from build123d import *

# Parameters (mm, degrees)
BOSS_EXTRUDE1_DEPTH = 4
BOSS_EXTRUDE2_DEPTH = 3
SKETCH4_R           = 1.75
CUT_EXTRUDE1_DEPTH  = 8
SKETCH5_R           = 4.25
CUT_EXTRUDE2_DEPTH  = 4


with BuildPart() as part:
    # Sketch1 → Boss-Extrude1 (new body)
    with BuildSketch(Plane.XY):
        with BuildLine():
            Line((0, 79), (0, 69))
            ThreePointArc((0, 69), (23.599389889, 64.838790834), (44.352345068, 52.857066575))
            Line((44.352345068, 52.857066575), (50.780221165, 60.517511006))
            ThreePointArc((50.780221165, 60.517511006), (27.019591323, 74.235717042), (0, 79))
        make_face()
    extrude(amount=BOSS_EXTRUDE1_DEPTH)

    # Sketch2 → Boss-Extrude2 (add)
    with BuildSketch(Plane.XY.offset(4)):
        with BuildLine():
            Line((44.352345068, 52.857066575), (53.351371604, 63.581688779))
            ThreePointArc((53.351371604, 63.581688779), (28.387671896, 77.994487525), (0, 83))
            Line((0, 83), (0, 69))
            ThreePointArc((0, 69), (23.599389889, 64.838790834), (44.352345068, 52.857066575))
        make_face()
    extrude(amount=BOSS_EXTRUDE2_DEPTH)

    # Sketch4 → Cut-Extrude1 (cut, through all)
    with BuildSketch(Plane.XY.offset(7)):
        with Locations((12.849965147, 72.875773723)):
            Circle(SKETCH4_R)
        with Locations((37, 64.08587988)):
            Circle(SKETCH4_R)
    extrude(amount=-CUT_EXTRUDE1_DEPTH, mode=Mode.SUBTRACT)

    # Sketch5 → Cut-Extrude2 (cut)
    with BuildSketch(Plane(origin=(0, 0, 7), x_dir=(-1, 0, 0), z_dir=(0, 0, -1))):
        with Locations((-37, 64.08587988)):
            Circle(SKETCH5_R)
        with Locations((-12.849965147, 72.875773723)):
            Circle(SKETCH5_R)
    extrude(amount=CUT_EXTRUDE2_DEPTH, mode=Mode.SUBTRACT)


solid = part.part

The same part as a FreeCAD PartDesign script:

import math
import FreeCAD as App
import Part
import Sketcher

V = App.Vector
Q = App.Units.Quantity

doc = App.newDocument("Part")
params = doc.addObject("Spreadsheet::Sheet", "Params")
for row, (alias, value) in enumerate([
    ("sketch1_radius", "69 mm"),
    ("sketch1_radius2", "79 mm"),
    ("pad1_length", "4 mm"),
    ("sketch2_radius", "83 mm"),
    ("sketch2_radius2", "69 mm"),
    ("pad2_length", "3 mm"),
    ("sketch3_diameter", "3.5 mm"),
    ("sketch4_diameter", "8.5 mm"),
    ("pocket2_length", "4 mm"),
], start=1):
    params.set(f"A{row}", alias)
    params.set(f"B{row}", "=" + value)
    params.setAlias(f"B{row}", alias)

body = doc.addObject("PartDesign::Body", "Body")

# Sketch on XY plane
sketch1 = body.newObject("Sketcher::SketchObject", "Sketch")
sketch1.AttachmentSupport = (doc.getObject("XY_Plane"), [""])
sketch1.MapMode = "FlatFace"
sketch1.addGeometry(Part.LineSegment(V(0, 79, 0), V(0, 69, 0)), False)
sketch1.addGeometry(Part.ArcOfCircle(Part.Circle(V(0, 0, 0), V(0, 0, 1), 69), math.radians(50), math.radians(90)), False)
sketch1.addGeometry(Part.LineSegment(V(44, 53, 0), V(51, 61, 0)), False)
sketch1.addGeometry(Part.ArcOfCircle(Part.Circle(V(0, 0, 0), V(0, 0, 1), 79), math.radians(50), math.radians(90)), False)
sketch1.addConstraint(Sketcher.Constraint("Coincident", 0, 2, 1, 2))
sketch1.addConstraint(Sketcher.Constraint("Coincident", 1, 1, 2, 1))
sketch1.addConstraint(Sketcher.Constraint("Coincident", 2, 2, 3, 1))
sketch1.addConstraint(Sketcher.Constraint("Coincident", 3, 2, 0, 1))
sketch1.addConstraint(Sketcher.Constraint("Vertical", 0))
sketch1.addConstraint(Sketcher.Constraint("Coincident", 1, 3, -1, 1))
sketch1.addConstraint(Sketcher.Constraint("Coincident", 3, 3, -1, 1))
sketch1.addConstraint(Sketcher.Constraint("PointOnObject", 0, 2, -2))
sketch1.addConstraint(Sketcher.Constraint("Radius", 1, 69.0))
sketch1.addConstraint(Sketcher.Constraint("Radius", 3, 79.0))
sketch1.addConstraint(Sketcher.Constraint("Angle", 2, Q("50 deg")))
sketch1.addConstraint(Sketcher.Constraint("DistanceX", -1, 1, 2, 2, 50.780221))
sketch1.setExpression("Constraints[8]", "Params.sketch1_radius")
sketch1.setExpression("Constraints[9]", "Params.sketch1_radius2")
pad1 = body.newObject("PartDesign::Pad", "Pad")
pad1.Profile = sketch1
pad1.setExpression("Length", "Params.pad1_length")

# Sketch on XY plane
sketch2 = body.newObject("Sketcher::SketchObject", "Sketch001")
sketch2.AttachmentSupport = (doc.getObject("XY_Plane"), [""])
sketch2.MapMode = "FlatFace"
sketch2.AttachmentOffset = App.Placement(V(0, 0, 4), App.Rotation())
sketch2.addGeometry(Part.LineSegment(V(44, 53, 0), V(53, 64, 0)), False)
sketch2.addGeometry(Part.ArcOfCircle(Part.Circle(V(0, 0, 0), V(0, 0, 1), 83), math.radians(50), math.radians(90)), False)
sketch2.addGeometry(Part.LineSegment(V(0, 83, 0), V(0, 69, 0)), False)
sketch2.addGeometry(Part.ArcOfCircle(Part.Circle(V(0, 0, 0), V(0, 0, 1), 69), math.radians(50), math.radians(90)), False)
sketch2.addConstraint(Sketcher.Constraint("Coincident", 0, 2, 1, 1))
sketch2.addConstraint(Sketcher.Constraint("Coincident", 1, 2, 2, 1))
sketch2.addConstraint(Sketcher.Constraint("Coincident", 2, 2, 3, 2))
sketch2.addConstraint(Sketcher.Constraint("Coincident", 3, 1, 0, 1))
sketch2.addConstraint(Sketcher.Constraint("Vertical", 2))
sketch2.addConstraint(Sketcher.Constraint("Coincident", 1, 3, -1, 1))
sketch2.addConstraint(Sketcher.Constraint("Coincident", 3, 3, -1, 1))
sketch2.addConstraint(Sketcher.Constraint("PointOnObject", 1, 2, -2))
sketch2.addConstraint(Sketcher.Constraint("Radius", 1, 83.0))
sketch2.addConstraint(Sketcher.Constraint("Radius", 3, 69.0))
sketch2.addConstraint(Sketcher.Constraint("Angle", 0, Q("50 deg")))
sketch2.addConstraint(Sketcher.Constraint("DistanceX", -1, 1, 0, 2, 53.351372))
sketch2.setExpression("Constraints[8]", "Params.sketch2_radius")
sketch2.setExpression("Constraints[9]", "Params.sketch2_radius2")
pad2 = body.newObject("PartDesign::Pad", "Pad001")
pad2.Profile = sketch2
pad2.setExpression("Length", "Params.pad2_length")

# Sketch on XY plane
sketch3 = body.newObject("Sketcher::SketchObject", "Sketch002")
sketch3.AttachmentSupport = (doc.getObject("XY_Plane"), [""])
sketch3.MapMode = "FlatFace"
sketch3.AttachmentOffset = App.Placement(V(0, 0, 7), App.Rotation())
sketch3.addGeometry(Part.Circle(V(12.8, 72.9, 0), V(0, 0, 1), 1.8), False)
sketch3.addGeometry(Part.Circle(V(37, 64.1, 0), V(0, 0, 1), 1.8), False)
sketch3.addConstraint(Sketcher.Constraint("Equal", 0, 1))
sketch3.addConstraint(Sketcher.Constraint("Diameter", 0, 3.5))
sketch3.addConstraint(Sketcher.Constraint("DistanceX", -1, 1, 1, 3, 37.0))
sketch3.addConstraint(Sketcher.Constraint("DistanceY", -1, 1, 1, 3, 64.08588))
sketch3.addConstraint(Sketcher.Constraint("DistanceX", -1, 1, 0, 3, 12.849965))
sketch3.addConstraint(Sketcher.Constraint("DistanceY", -1, 1, 0, 3, 72.875774))
sketch3.setExpression("Constraints[1]", "Params.sketch3_diameter")
pocket1 = body.newObject("PartDesign::Pocket", "Pocket")
pocket1.Profile = sketch3
pocket1.Type = "ThroughAll"

# Sketch on XY plane
sketch4 = body.newObject("Sketcher::SketchObject", "Sketch003")
sketch4.AttachmentSupport = (doc.getObject("XY_Plane"), [""])
sketch4.MapMode = "FlatFace"
sketch4.AttachmentOffset = App.Placement(V(0, 0, 7), App.Rotation())
sketch4.addGeometry(Part.Circle(V(37, 64.1, 0), V(0, 0, 1), 4.2), False)
sketch4.addGeometry(Part.Circle(V(12.8, 72.9, 0), V(0, 0, 1), 4.2), False)
sketch4.addConstraint(Sketcher.Constraint("Equal", 0, 1))
sketch4.addConstraint(Sketcher.Constraint("Diameter", 0, 8.5))
sketch4.addConstraint(Sketcher.Constraint("DistanceX", -1, 1, 0, 3, 37.0))
sketch4.addConstraint(Sketcher.Constraint("DistanceY", -1, 1, 0, 3, 64.08588))
sketch4.addConstraint(Sketcher.Constraint("DistanceX", -1, 1, 1, 3, 12.849965))
sketch4.addConstraint(Sketcher.Constraint("DistanceY", -1, 1, 1, 3, 72.875774))
sketch4.setExpression("Constraints[1]", "Params.sketch4_diameter")
pocket2 = body.newObject("PartDesign::Pocket", "Pocket001")
pocket2.Profile = sketch4
pocket2.setExpression("Length", "Params.pocket2_length")

doc.recompute()
